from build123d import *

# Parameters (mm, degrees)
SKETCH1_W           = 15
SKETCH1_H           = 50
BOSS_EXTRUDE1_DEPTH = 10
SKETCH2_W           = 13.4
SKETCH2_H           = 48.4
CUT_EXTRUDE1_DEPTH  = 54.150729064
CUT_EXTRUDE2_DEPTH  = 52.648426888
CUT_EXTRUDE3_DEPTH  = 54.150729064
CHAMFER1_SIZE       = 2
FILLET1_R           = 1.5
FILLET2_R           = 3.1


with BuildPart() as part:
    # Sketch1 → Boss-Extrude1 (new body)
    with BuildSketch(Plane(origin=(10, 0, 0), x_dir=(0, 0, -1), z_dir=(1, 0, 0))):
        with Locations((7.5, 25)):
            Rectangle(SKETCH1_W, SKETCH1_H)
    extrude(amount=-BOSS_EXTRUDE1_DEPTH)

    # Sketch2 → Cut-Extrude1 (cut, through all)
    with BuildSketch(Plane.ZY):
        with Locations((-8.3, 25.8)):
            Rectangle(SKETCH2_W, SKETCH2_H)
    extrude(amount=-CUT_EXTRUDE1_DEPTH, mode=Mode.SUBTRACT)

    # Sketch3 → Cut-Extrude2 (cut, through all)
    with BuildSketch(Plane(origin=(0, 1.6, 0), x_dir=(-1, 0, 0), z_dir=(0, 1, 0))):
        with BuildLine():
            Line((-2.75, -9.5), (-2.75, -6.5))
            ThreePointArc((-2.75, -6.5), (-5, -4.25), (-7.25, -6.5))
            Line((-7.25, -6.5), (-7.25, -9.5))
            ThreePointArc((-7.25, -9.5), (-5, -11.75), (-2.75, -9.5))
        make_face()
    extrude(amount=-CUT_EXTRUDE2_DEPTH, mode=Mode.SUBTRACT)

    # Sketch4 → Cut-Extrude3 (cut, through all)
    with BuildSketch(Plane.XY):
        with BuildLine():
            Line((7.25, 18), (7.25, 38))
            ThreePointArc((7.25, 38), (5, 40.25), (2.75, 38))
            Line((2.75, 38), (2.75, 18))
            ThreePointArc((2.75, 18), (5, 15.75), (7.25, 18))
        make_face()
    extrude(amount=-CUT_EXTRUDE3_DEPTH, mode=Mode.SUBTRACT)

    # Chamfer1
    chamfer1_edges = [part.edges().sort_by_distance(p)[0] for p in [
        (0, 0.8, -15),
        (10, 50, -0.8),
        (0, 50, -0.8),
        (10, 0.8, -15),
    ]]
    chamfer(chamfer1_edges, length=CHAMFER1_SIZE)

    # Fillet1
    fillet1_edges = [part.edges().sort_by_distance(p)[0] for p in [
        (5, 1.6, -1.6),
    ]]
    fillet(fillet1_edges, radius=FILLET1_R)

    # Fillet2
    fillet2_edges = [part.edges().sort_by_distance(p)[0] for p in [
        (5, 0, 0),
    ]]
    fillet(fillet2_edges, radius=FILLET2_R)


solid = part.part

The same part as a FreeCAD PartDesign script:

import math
import FreeCAD as App
import Part
import Sketcher


def edges_at(feature, points):
    """Names of the edges that pass closest to the given points."""
    edges = feature.Shape.Edges
    near = lambda p: min(range(len(edges)), key=lambda i: edges[i].distToShape(Part.Vertex(*p))[0])
    return sorted({f"Edge{near(p) + 1}" for p in points})


def add_polygon(sketch, points):
    """Adds a closed chain of lines whose ends are joined by coincident constraints."""
    first, n = sketch.GeometryCount, len(points)
    for a, b in zip(points, points[1:] + points[:1]):
        sketch.addGeometry(Part.LineSegment(App.Vector(*a, 0), App.Vector(*b, 0)), False)
    for i in range(n):
        sketch.addConstraint(Sketcher.Constraint("Coincident", first + i, 2, first + (i + 1) % n, 1))

doc = App.newDocument("Part")
body = doc.addObject("PartDesign::Body", "Body")

# Sketch on YZ plane
sketch1 = body.newObject("Sketcher::SketchObject", "Sketch")
sketch1.AttachmentSupport = (doc.getObject("YZ_Plane"), [""])
sketch1.MapMode = "FlatFace"
sketch1.AttachmentOffset = App.Placement(App.Vector(0, 0, 10), App.Rotation())
add_polygon(sketch1, [(50, 0), (0, 0), (0, -15), (50, -15)])  # lines 0-3
sketch1.addConstraint([
    Sketcher.Constraint("Horizontal", 0),
    Sketcher.Constraint("Vertical", 1),
    Sketcher.Constraint("Horizontal", 2),
    Sketcher.Constraint("Vertical", 3),
    Sketcher.Constraint("Coincident", 0, 2, -1, 1),
    Sketcher.Constraint("DistanceX", 0, 2, 0, 1, 50.0),
    Sketcher.Constraint("DistanceY", 1, 2, 1, 1, 15.0),
])
pad1 = body.newObject("PartDesign::Pad", "Pad")
pad1.Profile = sketch1
pad1.Length = 10
pad1.Reversed = True

# Sketch on YZ plane
sketch2 = body.newObject("Sketcher::SketchObject", "Sketch001")
sketch2.AttachmentSupport = (doc.getObject("YZ_Plane"), [""])
sketch2.MapMode = "FlatFace"
add_polygon(sketch2, [(50, -15), (2, -15), (2, -2), (50, -2)])  # lines 0-3
sketch2.addConstraint([
    Sketcher.Constraint("Horizontal", 0),
    Sketcher.Constraint("Vertical", 1),
    Sketcher.Constraint("Horizontal", 2),
    Sketcher.Constraint("Vertical", 3),
    Sketcher.Constraint("DistanceX", 0, 2, 0, 1, 48.4),
    Sketcher.Constraint("DistanceY", 1, 1, 1, 2, 13.4),
    Sketcher.Constraint("DistanceY", 0, 2, -1, 1, 15.0),
    Sketcher.Constraint("DistanceX", -1, 1, 2, 2, 50.0),
])
pocket1 = body.newObject("PartDesign::Pocket", "Pocket")
pocket1.Profile = sketch2
pocket1.Type = "ThroughAll"
pocket1.Reversed = True

# Sketch on XZ plane
sketch3 = body.newObject("Sketcher::SketchObject", "Sketch002")
sketch3.AttachmentSupport = (doc.getObject("XZ_Plane"), [""])
sketch3.MapMode = "FlatFace"
sketch3.AttachmentOffset = App.Placement(App.Vector(0, 0, -1.6), App.Rotation())
sketch3.addGeometry([
    Part.LineSegment(App.Vector(2.8, -9.5, 0), App.Vector(2.8, -6.5, 0)),
    Part.ArcOfCircle(Part.Circle(App.Vector(5, -6.5, 0), App.Vector(0, 0, 1), 2.2), math.radians(0), math.radians(180)),
    Part.LineSegment(App.Vector(7.2, -6.5, 0), App.Vector(7.2, -9.5, 0)),
    Part.ArcOfCircle(Part.Circle(App.Vector(5, -9.5, 0), App.Vector(0, 0, 1), 2.2), math.radians(180), math.radians(360)),
], False)
sketch3.addConstraint([
    Sketcher.Constraint("Tangent", 0, 2, 1, 2),
    Sketcher.Constraint("Tangent", 1, 1, 2, 1),
    Sketcher.Constraint("Tangent", 2, 2, 3, 2),
    Sketcher.Constraint("Tangent", 3, 1, 0, 1),
    Sketcher.Constraint("Vertical", 0),
    Sketcher.Constraint("Vertical", 2),
    Sketcher.Constraint("DistanceY", 0, 1, 0, 2, 3.0),
    Sketcher.Constraint("Radius", 1, 2.25),
    Sketcher.Constraint("DistanceX", -1, 1, 1, 3, 5.0),
    Sketcher.Constraint("DistanceY", 1, 3, -1, 1, 6.5),
])
pocket2 = body.newObject("PartDesign::Pocket", "Pocket001")
pocket2.Profile = sketch3
pocket2.Type = "ThroughAll"
pocket2.Reversed = True

# Sketch on XY plane
sketch4 = body.newObject("Sketcher::SketchObject", "Sketch003")
sketch4.AttachmentSupport = (doc.getObject("XY_Plane"), [""])
sketch4.MapMode = "FlatFace"
sketch4.addGeometry([
    Part.LineSegment(App.Vector(7.2, 18, 0), App.Vector(7.2, 38, 0)),
    Part.ArcOfCircle(Part.Circle(App.Vector(5, 38, 0), App.Vector(0, 0, 1), 2.2), math.radians(0), math.radians(180)),
    Part.LineSegment(App.Vector(2.8, 38, 0), App.Vector(2.8, 18, 0)),
    Part.ArcOfCircle(Part.Circle(App.Vector(5, 18, 0), App.Vector(0, 0, 1), 2.2), math.radians(180), math.radians(360)),
], False)
sketch4.addConstraint([
    Sketcher.Constraint("Tangent", 0, 2, 1, 1),
    Sketcher.Constraint("Tangent", 1, 2, 2, 1),
    Sketcher.Constraint("Tangent", 2, 2, 3, 1),
    Sketcher.Constraint("Tangent", 3, 2, 0, 1),
    Sketcher.Constraint("Vertical", 0),
    Sketcher.Constraint("Vertical", 2),
    Sketcher.Constraint("DistanceY", 0, 1, 0, 2, 20.0),
    Sketcher.Constraint("Radius", 1, 2.25),
    Sketcher.Constraint("DistanceX", -1, 1, 1, 3, 5.0),
    Sketcher.Constraint("DistanceY", -1, 1, 1, 3, 38.0),
])
pocket3 = body.newObject("PartDesign::Pocket", "Pocket002")
pocket3.Profile = sketch4
pocket3.Type = "ThroughAll"
doc.recompute()

chamfer = body.newObject("PartDesign::Chamfer", "Chamfer")
chamfer.Base = (pocket3, edges_at(pocket3, [
    (0, 0.8, -15),
    (10, 50, -0.8),
    (0, 50, -0.8),
    (10, 0.8, -15),
]))
chamfer.Size = 2
doc.recompute()

fillet = body.newObject("PartDesign::Fillet", "Fillet")
fillet.Base = (chamfer, edges_at(chamfer, [(5, 1.6, -1.6)]))
fillet.Radius = 1.5
doc.recompute()

fillet2 = body.newObject("PartDesign::Fillet", "Fillet001")
fillet2.Base = (fillet, edges_at(fillet, [(5, 0, 0)]))
fillet2.Radius = 3.1

doc.recompute()
